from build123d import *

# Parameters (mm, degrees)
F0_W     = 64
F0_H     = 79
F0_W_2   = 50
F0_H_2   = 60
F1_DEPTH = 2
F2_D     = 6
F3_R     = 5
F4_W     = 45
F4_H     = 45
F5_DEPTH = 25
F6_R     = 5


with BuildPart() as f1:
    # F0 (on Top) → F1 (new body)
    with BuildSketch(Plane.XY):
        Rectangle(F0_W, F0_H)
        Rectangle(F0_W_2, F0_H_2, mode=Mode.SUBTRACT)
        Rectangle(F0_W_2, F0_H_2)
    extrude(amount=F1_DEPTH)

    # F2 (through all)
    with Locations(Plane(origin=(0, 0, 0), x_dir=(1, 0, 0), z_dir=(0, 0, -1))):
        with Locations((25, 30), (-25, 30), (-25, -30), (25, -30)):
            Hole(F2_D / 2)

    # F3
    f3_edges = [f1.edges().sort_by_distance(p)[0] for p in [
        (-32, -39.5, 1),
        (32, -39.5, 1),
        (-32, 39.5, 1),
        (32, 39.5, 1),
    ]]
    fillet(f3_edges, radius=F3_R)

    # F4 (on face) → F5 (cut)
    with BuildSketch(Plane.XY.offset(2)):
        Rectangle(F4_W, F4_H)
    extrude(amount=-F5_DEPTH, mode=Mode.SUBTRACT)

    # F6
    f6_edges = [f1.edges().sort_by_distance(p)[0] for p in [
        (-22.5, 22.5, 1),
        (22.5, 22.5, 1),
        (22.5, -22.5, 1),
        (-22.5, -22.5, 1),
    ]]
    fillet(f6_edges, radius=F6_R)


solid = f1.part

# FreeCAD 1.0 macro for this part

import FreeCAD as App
import Part
import Sketcher

V = App.Vector
Q = App.Units.Quantity


def edges_at(feature, points):
    """Names of the edges that pass closest to the given points."""
    edges = feature.Shape.Edges
    near = lambda p: min(range(len(edges)), key=lambda i: edges[i].distToShape(Part.Vertex(*p))[0])
    return sorted({f"Edge{near(p) + 1}" for p in points})


def add_polygon(sketch, points):
    """Adds a closed chain of lines whose ends are joined by coincident constraints."""
    first, n = sketch.GeometryCount, len(points)
    for a, b in zip(points, points[1:] + points[:1]):
        sketch.addGeometry(Part.LineSegment(App.Vector(*a, 0), App.Vector(*b, 0)), False)
    for i in range(n):
        sketch.addConstraint(Sketcher.Constraint("Coincident", first + i, 2, first + (i + 1) % n, 1))

doc = App.newDocument("Part")
body = doc.addObject("PartDesign::Body", "Body")

# Sketch on XY plane
sketch1 = doc.addObject("Sketcher::SketchObject", "Sketch")
body.addObject(sketch1)
sketch1.AttachmentSupport = (doc.XY_Plane, [""])
sketch1.MapMode = "FlatFace"
add_polygon(sketch1, [(-32, 39.5), (-32, -39.5), (32, -39.5), (32, 39.5)])  # lines 0-3
sketch1.addConstraint(Sketcher.Constraint("Vertical", 0))
sketch1.addConstraint(Sketcher.Constraint("Horizontal", 1))
sketch1.addConstraint(Sketcher.Constraint("Vertical", 2))
sketch1.addConstraint(Sketcher.Constraint("Horizontal", 3))
sketch1.addConstraint(Sketcher.Constraint("Symmetric", 0, 2, 2, 2, -1, 1))
sketch1.addConstraint(Sketcher.Constraint("DistanceX", 1, 1, 1, 2, Q("64 mm")))
sketch1.addConstraint(Sketcher.Constraint("DistanceY", 0, 2, 0, 1, Q("79 mm")))
pad1 = doc.addObject("PartDesign::Pad", "Pad")
body.addObject(pad1)
pad1.Profile = sketch1
pad1.Length = 2

# Sketch on XY plane
sketch2 = doc.addObject("Sketcher::SketchObject", "Sketch001")
body.addObject(sketch2)
sketch2.AttachmentSupport = (doc.XY_Plane, [""])
sketch2.MapMode = "FlatFace"
sketch2.addGeometry(Part.Circle(V(25, -30, 0), V(0, 0, 1), 3), False)
sketch2.addGeometry(Part.Circle(V(-25, -30, 0), V(0, 0, 1), 3), False)
sketch2.addGeometry(Part.Circle(V(-25, 30, 0), V(0, 0, 1), 3), False)
sketch2.addGeometry(Part.Circle(V(25, 30, 0), V(0, 0, 1), 3), False)
sketch2.addConstraint(Sketcher.Constraint("Equal", 0, 1))
sketch2.addConstraint(Sketcher.Constraint("Equal", 1, 2))
sketch2.addConstraint(Sketcher.Constraint("Equal", 2, 3))
sketch2.addConstraint(Sketcher.Constraint("Symmetric", 0, 3, 2, 3, -1, 1))
sketch2.addConstraint(Sketcher.Constraint("Symmetric", 1, 3, 3, 3, -1, 1))
sketch2.addConstraint(Sketcher.Constraint("Symmetric", 0, 3, 1, 3, -2))
sketch2.addConstraint(Sketcher.Constraint("Diameter", 0, Q("6 mm")))
sketch2.addConstraint(Sketcher.Constraint("DistanceX", -1, 1, 0, 3, Q("25 mm")))
sketch2.addConstraint(Sketcher.Constraint("DistanceY", 0, 3, -1, 1, Q("30 mm")))
doc.recompute()
hole = doc.addObject("PartDesign::Hole", "Hole")
body.addObject(hole)
hole.Profile = sketch2
hole.ThreadType = "None"
hole.Diameter = 6
hole.DepthType = "ThroughAll"
hole.Reversed = True
doc.recompute()

fillet = doc.addObject("PartDesign::Fillet", "Fillet")
body.addObject(fillet)
fillet.Base = (hole, edges_at(hole, [
    (-32, -39.5, 1),
    (32, -39.5, 1),
    (-32, 39.5, 1),
    (32, 39.5, 1),
]))
fillet.Radius = 5

# Sketch on XY plane
sketch3 = doc.addObject("Sketcher::SketchObject", "Sketch002")
body.addObject(sketch3)
sketch3.AttachmentSupport = (doc.XY_Plane, [""])
sketch3.MapMode = "FlatFace"
sketch3.AttachmentOffset = App.Placement(V(0, 0, 2), App.Rotation())
add_polygon(sketch3, [(-22.5, 22.5), (-22.5, -22.5), (22.5, -22.5), (22.5, 22.5)])  # lines 0-3
sketch3.addConstraint(Sketcher.Constraint("Vertical", 0))
sketch3.addConstraint(Sketcher.Constraint("Horizontal", 1))
sketch3.addConstraint(Sketcher.Constraint("Vertical", 2))
sketch3.addConstraint(Sketcher.Constraint("Horizontal", 3))
sketch3.addConstraint(Sketcher.Constraint("Symmetric", 0, 2, 2, 2, -1, 1))
sketch3.addConstraint(Sketcher.Constraint("Equal", 3, 0))
sketch3.addConstraint(Sketcher.Constraint("DistanceX", 1, 1, 1, 2, Q("45 mm")))
pocket1 = doc.addObject("PartDesign::Pocket", "Pocket")
body.addObject(pocket1)
pocket1.Profile = sketch3
pocket1.Length = 25
doc.recompute()

fillet2 = doc.addObject("PartDesign::Fillet", "Fillet001")
body.addObject(fillet2)
fillet2.Base = (pocket1, edges_at(pocket1, [
    (-22.5, 22.5, 1),
    (22.5, 22.5, 1),
    (22.5, -22.5, 1),
    (-22.5, -22.5, 1),
]))
fillet2.Radius = 5

doc.recompute()
